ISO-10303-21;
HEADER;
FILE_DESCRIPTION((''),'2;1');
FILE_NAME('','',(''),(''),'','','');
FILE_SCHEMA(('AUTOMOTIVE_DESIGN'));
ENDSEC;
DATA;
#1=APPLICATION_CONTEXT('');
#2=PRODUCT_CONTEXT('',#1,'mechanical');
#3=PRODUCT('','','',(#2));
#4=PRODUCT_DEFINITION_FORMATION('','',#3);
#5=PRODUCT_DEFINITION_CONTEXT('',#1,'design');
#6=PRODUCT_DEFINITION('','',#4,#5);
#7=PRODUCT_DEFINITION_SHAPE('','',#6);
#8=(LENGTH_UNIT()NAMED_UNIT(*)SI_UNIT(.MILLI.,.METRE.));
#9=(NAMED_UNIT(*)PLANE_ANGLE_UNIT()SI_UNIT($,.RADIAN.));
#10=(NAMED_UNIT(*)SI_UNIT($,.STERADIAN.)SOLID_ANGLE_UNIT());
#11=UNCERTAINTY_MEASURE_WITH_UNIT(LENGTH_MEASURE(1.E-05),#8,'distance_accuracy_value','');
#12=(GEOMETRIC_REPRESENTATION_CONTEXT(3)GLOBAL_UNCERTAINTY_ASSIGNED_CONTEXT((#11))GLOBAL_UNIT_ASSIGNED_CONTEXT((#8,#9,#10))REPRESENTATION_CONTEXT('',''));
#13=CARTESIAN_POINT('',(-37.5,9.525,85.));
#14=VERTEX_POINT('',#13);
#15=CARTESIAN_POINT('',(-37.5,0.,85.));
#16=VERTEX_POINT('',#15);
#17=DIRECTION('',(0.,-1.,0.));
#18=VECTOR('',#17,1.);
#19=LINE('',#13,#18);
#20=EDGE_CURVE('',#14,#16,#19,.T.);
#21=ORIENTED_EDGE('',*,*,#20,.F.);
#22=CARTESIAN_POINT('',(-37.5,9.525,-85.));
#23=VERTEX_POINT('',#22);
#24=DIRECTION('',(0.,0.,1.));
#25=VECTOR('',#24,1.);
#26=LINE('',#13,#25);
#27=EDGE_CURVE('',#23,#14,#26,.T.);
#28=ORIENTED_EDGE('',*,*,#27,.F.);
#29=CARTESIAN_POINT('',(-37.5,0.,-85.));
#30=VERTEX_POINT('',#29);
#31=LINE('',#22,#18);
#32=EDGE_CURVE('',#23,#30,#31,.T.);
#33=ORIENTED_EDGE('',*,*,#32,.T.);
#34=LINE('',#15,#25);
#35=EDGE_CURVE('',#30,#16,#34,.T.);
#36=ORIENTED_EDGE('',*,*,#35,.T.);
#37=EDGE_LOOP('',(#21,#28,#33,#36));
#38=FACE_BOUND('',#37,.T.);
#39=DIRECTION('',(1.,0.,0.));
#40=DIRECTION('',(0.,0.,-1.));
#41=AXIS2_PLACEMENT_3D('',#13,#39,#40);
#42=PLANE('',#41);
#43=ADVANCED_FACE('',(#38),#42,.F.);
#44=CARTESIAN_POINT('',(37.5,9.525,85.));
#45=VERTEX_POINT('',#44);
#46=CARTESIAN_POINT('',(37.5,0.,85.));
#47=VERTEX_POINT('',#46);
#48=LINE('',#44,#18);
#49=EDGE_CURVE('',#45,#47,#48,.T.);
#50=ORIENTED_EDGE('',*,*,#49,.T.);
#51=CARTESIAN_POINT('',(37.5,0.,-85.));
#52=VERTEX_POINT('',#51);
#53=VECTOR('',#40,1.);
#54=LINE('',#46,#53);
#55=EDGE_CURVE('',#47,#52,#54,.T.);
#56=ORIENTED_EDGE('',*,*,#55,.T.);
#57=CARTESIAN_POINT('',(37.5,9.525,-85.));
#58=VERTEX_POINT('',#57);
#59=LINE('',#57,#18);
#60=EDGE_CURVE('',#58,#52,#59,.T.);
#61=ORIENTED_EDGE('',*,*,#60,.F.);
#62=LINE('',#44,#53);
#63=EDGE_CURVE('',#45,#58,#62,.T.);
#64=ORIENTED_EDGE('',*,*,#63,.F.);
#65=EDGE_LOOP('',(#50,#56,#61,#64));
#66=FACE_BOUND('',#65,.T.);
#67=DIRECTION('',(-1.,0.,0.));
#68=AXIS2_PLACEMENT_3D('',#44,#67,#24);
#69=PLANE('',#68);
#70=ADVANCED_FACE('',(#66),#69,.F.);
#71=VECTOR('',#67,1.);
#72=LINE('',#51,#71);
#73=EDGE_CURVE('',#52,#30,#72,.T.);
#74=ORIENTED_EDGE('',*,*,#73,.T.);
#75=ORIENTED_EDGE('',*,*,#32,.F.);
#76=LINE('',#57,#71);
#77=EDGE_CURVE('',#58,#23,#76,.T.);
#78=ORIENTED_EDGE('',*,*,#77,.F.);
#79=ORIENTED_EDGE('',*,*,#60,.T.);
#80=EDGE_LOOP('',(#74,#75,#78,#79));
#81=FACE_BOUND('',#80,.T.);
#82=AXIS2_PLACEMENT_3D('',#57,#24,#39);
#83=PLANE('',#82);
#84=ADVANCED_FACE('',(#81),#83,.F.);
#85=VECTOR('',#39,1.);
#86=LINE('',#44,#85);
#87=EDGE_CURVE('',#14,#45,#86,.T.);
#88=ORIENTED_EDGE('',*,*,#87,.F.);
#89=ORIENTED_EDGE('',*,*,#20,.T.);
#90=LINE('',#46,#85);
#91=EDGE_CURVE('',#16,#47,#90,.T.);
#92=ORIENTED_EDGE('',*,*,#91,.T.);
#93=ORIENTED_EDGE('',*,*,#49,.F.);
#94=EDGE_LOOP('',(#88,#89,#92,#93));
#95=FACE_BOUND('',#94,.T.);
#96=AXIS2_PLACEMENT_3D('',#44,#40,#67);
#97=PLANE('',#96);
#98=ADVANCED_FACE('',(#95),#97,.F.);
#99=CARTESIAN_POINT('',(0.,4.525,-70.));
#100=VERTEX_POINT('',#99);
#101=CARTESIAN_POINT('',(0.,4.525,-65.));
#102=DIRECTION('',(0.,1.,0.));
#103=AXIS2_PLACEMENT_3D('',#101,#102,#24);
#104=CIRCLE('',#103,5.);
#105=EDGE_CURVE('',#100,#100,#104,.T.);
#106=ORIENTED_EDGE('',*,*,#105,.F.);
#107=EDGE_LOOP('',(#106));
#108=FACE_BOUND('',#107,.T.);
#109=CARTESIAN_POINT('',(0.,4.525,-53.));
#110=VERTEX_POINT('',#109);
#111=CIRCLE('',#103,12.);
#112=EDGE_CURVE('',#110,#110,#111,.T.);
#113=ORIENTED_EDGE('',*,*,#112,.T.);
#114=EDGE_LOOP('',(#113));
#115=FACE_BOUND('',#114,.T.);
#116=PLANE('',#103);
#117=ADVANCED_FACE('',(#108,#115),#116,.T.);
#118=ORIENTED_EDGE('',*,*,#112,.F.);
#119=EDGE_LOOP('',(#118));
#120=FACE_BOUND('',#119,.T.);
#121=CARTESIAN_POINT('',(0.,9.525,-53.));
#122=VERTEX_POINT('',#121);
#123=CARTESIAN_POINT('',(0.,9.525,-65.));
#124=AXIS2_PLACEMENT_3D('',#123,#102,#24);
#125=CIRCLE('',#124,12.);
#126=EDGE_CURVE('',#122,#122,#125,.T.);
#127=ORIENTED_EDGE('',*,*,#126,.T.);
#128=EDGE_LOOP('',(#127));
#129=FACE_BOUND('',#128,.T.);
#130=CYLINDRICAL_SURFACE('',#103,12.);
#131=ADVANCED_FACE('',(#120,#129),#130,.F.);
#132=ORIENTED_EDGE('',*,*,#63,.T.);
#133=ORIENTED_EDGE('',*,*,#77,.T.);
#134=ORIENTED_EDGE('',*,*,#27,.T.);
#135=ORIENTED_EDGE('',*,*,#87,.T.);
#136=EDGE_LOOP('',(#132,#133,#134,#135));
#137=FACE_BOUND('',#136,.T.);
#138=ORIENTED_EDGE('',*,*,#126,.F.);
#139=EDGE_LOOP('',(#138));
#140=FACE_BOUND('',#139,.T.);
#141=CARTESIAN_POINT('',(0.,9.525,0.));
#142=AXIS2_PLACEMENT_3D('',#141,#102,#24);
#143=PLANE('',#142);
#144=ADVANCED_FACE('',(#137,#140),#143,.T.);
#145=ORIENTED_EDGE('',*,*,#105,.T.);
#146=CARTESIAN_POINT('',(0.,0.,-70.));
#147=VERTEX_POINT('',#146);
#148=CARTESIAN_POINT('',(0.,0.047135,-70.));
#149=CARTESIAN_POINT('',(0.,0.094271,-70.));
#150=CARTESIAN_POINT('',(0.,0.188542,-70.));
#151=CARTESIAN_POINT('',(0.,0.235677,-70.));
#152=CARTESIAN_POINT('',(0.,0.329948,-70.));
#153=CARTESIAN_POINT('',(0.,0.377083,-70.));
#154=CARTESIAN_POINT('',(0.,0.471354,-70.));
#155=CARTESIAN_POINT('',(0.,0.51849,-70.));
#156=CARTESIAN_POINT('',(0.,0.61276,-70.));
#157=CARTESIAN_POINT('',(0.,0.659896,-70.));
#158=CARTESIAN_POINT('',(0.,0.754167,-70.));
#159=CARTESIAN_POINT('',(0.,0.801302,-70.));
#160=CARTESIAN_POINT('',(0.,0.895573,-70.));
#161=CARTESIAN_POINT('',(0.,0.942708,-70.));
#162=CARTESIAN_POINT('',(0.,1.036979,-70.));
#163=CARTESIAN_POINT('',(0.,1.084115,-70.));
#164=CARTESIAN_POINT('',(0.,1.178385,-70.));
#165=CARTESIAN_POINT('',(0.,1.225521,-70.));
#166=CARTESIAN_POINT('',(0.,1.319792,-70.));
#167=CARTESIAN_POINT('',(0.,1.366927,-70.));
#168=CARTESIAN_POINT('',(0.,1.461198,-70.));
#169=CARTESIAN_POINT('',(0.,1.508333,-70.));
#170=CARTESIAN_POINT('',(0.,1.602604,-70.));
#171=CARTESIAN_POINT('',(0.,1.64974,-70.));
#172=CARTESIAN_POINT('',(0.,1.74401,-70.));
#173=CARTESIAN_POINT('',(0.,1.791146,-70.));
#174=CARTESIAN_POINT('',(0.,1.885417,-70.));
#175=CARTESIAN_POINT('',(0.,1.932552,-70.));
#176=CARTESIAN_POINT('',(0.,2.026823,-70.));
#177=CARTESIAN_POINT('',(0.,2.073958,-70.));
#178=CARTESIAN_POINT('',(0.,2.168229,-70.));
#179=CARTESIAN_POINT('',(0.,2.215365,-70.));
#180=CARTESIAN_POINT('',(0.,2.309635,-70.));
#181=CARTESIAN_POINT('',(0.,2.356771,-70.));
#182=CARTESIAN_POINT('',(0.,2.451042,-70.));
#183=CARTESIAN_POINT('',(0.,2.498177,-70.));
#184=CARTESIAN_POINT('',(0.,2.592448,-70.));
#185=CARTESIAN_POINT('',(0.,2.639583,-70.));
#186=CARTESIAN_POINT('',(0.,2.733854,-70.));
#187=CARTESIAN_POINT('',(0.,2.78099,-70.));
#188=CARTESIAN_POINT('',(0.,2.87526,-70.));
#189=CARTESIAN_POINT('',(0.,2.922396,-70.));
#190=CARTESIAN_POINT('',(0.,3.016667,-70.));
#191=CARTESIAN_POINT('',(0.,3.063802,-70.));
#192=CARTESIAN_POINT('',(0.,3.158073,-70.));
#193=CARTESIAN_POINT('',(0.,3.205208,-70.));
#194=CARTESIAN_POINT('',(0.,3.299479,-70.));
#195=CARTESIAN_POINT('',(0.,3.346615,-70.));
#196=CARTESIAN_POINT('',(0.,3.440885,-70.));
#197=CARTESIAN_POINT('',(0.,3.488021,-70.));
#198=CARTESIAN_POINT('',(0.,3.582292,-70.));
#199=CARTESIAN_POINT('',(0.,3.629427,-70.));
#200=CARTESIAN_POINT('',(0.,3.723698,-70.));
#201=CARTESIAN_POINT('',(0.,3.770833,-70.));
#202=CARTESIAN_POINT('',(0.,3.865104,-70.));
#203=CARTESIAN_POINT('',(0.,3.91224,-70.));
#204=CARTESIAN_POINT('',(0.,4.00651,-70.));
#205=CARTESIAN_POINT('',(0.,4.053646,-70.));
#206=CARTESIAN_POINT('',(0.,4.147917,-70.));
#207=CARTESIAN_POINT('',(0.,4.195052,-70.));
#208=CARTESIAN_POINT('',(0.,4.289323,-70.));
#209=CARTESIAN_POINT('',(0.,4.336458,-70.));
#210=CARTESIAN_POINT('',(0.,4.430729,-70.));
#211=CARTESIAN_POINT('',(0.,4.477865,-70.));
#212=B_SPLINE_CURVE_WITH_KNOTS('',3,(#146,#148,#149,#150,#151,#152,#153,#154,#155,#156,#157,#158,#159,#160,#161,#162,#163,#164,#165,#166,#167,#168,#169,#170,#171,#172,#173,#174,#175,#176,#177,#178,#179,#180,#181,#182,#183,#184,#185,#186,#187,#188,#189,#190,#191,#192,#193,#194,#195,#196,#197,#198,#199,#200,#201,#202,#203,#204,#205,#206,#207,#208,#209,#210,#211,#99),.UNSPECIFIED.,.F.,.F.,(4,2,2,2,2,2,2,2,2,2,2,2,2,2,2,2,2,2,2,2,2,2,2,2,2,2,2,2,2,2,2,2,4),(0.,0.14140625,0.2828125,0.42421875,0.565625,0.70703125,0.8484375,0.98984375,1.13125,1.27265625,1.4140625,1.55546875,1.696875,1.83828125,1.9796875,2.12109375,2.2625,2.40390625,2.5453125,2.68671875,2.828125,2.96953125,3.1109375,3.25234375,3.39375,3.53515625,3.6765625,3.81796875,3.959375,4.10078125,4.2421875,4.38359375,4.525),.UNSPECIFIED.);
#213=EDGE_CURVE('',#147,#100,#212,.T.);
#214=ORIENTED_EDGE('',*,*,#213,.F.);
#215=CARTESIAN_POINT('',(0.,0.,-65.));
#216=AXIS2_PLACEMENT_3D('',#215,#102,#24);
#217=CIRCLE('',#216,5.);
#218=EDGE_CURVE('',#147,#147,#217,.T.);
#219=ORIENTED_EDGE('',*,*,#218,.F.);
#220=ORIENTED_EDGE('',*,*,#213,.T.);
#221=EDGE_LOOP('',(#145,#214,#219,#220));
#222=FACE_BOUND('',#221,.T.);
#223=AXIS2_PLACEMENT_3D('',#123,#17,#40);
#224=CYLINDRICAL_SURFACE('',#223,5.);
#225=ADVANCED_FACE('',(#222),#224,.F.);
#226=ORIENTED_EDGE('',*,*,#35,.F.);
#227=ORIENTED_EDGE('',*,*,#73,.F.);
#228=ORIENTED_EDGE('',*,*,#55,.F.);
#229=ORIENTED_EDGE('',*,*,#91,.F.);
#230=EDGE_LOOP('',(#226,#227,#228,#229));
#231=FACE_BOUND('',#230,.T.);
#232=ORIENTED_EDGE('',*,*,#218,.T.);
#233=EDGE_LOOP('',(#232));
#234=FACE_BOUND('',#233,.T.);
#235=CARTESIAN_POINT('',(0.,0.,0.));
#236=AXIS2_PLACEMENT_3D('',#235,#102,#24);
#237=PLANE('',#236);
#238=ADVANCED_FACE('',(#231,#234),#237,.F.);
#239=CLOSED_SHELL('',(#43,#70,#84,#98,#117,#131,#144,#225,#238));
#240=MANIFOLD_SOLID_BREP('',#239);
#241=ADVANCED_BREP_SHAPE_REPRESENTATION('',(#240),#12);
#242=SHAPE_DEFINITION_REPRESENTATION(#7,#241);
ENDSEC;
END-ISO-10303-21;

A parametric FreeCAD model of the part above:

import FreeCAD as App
import Part
import Sketcher

V = App.Vector
Q = App.Units.Quantity

doc = App.newDocument("Part")
body = doc.addObject("PartDesign::Body", "Body")

# Sketch on XZ plane
sketch1 = doc.addObject("Sketcher::SketchObject", "Sketch")
body.addObject(sketch1)
sketch1.AttachmentSupport = (doc.XZ_Plane, [""])
sketch1.MapMode = "FlatFace"
sketch1.addGeometry([
    Part.LineSegment(V(-37.5, -85, 0), V(-37.5, 85, 0)),  # 0
    Part.LineSegment(V(-37.5, 85, 0), V(37.5, 85, 0)),  # 1
    Part.LineSegment(V(37.5, 85, 0), V(37.5, -85, 0)),  # 2
    Part.LineSegment(V(37.5, -85, 0), V(-37.5, -85, 0)),  # 3
    Part.Circle(V(0, -65, 0), V(0, 0, 1), 5),  # 4
], False)
sketch1.addConstraint([
    Sketcher.Constraint("Coincident", 0, 2, 1, 1),
    Sketcher.Constraint("Coincident", 1, 2, 2, 1),
    Sketcher.Constraint("Coincident", 2, 2, 3, 1),
    Sketcher.Constraint("Coincident", 3, 2, 0, 1),
    Sketcher.Constraint("Vertical", 0),
    Sketcher.Constraint("Horizontal", 1),
    Sketcher.Constraint("Vertical", 2),
    Sketcher.Constraint("Horizontal", 3),
    Sketcher.Constraint("Symmetric", 0, 2, 2, 2, -1, 1),
    Sketcher.Constraint("PointOnObject", 4, 3, -2),
    Sketcher.Constraint("Diameter", 4, Q("10 mm")),
    Sketcher.Constraint("DistanceX", 1, 1, 1, 2, Q("75 mm")),
    Sketcher.Constraint("DistanceY", 0, 1, 0, 2, Q("170 mm")),
    Sketcher.Constraint("DistanceY", 4, 3, -1, 1, Q("65 mm")),
])
pad1 = doc.addObject("PartDesign::Pad", "Pad")
body.addObject(pad1)
pad1.Profile = sketch1
pad1.Length = 9.525
pad1.Reversed = True

# Sketch on XZ plane
sketch2 = doc.addObject("Sketcher::SketchObject", "Sketch001")
body.addObject(sketch2)
sketch2.AttachmentSupport = (doc.XZ_Plane, [""])
sketch2.MapMode = "FlatFace"
sketch2.AttachmentOffset = App.Placement(V(0, 0, -9.525), App.Rotation())
sketch2.addGeometry(Part.Circle(V(0, -65, 0), V(0, 0, 1), 12), False)
sketch2.addConstraint([
    Sketcher.Constraint("PointOnObject", 0, 3, -2),
    Sketcher.Constraint("Diameter", 0, Q("24 mm")),
    Sketcher.Constraint("DistanceY", 0, 3, -1, 1, Q("65 mm")),
])
pocket1 = doc.addObject("PartDesign::Pocket", "Pocket")
body.addObject(pocket1)
pocket1.Profile = sketch2
pocket1.Length = 5
pocket1.Reversed = True

doc.recompute()
